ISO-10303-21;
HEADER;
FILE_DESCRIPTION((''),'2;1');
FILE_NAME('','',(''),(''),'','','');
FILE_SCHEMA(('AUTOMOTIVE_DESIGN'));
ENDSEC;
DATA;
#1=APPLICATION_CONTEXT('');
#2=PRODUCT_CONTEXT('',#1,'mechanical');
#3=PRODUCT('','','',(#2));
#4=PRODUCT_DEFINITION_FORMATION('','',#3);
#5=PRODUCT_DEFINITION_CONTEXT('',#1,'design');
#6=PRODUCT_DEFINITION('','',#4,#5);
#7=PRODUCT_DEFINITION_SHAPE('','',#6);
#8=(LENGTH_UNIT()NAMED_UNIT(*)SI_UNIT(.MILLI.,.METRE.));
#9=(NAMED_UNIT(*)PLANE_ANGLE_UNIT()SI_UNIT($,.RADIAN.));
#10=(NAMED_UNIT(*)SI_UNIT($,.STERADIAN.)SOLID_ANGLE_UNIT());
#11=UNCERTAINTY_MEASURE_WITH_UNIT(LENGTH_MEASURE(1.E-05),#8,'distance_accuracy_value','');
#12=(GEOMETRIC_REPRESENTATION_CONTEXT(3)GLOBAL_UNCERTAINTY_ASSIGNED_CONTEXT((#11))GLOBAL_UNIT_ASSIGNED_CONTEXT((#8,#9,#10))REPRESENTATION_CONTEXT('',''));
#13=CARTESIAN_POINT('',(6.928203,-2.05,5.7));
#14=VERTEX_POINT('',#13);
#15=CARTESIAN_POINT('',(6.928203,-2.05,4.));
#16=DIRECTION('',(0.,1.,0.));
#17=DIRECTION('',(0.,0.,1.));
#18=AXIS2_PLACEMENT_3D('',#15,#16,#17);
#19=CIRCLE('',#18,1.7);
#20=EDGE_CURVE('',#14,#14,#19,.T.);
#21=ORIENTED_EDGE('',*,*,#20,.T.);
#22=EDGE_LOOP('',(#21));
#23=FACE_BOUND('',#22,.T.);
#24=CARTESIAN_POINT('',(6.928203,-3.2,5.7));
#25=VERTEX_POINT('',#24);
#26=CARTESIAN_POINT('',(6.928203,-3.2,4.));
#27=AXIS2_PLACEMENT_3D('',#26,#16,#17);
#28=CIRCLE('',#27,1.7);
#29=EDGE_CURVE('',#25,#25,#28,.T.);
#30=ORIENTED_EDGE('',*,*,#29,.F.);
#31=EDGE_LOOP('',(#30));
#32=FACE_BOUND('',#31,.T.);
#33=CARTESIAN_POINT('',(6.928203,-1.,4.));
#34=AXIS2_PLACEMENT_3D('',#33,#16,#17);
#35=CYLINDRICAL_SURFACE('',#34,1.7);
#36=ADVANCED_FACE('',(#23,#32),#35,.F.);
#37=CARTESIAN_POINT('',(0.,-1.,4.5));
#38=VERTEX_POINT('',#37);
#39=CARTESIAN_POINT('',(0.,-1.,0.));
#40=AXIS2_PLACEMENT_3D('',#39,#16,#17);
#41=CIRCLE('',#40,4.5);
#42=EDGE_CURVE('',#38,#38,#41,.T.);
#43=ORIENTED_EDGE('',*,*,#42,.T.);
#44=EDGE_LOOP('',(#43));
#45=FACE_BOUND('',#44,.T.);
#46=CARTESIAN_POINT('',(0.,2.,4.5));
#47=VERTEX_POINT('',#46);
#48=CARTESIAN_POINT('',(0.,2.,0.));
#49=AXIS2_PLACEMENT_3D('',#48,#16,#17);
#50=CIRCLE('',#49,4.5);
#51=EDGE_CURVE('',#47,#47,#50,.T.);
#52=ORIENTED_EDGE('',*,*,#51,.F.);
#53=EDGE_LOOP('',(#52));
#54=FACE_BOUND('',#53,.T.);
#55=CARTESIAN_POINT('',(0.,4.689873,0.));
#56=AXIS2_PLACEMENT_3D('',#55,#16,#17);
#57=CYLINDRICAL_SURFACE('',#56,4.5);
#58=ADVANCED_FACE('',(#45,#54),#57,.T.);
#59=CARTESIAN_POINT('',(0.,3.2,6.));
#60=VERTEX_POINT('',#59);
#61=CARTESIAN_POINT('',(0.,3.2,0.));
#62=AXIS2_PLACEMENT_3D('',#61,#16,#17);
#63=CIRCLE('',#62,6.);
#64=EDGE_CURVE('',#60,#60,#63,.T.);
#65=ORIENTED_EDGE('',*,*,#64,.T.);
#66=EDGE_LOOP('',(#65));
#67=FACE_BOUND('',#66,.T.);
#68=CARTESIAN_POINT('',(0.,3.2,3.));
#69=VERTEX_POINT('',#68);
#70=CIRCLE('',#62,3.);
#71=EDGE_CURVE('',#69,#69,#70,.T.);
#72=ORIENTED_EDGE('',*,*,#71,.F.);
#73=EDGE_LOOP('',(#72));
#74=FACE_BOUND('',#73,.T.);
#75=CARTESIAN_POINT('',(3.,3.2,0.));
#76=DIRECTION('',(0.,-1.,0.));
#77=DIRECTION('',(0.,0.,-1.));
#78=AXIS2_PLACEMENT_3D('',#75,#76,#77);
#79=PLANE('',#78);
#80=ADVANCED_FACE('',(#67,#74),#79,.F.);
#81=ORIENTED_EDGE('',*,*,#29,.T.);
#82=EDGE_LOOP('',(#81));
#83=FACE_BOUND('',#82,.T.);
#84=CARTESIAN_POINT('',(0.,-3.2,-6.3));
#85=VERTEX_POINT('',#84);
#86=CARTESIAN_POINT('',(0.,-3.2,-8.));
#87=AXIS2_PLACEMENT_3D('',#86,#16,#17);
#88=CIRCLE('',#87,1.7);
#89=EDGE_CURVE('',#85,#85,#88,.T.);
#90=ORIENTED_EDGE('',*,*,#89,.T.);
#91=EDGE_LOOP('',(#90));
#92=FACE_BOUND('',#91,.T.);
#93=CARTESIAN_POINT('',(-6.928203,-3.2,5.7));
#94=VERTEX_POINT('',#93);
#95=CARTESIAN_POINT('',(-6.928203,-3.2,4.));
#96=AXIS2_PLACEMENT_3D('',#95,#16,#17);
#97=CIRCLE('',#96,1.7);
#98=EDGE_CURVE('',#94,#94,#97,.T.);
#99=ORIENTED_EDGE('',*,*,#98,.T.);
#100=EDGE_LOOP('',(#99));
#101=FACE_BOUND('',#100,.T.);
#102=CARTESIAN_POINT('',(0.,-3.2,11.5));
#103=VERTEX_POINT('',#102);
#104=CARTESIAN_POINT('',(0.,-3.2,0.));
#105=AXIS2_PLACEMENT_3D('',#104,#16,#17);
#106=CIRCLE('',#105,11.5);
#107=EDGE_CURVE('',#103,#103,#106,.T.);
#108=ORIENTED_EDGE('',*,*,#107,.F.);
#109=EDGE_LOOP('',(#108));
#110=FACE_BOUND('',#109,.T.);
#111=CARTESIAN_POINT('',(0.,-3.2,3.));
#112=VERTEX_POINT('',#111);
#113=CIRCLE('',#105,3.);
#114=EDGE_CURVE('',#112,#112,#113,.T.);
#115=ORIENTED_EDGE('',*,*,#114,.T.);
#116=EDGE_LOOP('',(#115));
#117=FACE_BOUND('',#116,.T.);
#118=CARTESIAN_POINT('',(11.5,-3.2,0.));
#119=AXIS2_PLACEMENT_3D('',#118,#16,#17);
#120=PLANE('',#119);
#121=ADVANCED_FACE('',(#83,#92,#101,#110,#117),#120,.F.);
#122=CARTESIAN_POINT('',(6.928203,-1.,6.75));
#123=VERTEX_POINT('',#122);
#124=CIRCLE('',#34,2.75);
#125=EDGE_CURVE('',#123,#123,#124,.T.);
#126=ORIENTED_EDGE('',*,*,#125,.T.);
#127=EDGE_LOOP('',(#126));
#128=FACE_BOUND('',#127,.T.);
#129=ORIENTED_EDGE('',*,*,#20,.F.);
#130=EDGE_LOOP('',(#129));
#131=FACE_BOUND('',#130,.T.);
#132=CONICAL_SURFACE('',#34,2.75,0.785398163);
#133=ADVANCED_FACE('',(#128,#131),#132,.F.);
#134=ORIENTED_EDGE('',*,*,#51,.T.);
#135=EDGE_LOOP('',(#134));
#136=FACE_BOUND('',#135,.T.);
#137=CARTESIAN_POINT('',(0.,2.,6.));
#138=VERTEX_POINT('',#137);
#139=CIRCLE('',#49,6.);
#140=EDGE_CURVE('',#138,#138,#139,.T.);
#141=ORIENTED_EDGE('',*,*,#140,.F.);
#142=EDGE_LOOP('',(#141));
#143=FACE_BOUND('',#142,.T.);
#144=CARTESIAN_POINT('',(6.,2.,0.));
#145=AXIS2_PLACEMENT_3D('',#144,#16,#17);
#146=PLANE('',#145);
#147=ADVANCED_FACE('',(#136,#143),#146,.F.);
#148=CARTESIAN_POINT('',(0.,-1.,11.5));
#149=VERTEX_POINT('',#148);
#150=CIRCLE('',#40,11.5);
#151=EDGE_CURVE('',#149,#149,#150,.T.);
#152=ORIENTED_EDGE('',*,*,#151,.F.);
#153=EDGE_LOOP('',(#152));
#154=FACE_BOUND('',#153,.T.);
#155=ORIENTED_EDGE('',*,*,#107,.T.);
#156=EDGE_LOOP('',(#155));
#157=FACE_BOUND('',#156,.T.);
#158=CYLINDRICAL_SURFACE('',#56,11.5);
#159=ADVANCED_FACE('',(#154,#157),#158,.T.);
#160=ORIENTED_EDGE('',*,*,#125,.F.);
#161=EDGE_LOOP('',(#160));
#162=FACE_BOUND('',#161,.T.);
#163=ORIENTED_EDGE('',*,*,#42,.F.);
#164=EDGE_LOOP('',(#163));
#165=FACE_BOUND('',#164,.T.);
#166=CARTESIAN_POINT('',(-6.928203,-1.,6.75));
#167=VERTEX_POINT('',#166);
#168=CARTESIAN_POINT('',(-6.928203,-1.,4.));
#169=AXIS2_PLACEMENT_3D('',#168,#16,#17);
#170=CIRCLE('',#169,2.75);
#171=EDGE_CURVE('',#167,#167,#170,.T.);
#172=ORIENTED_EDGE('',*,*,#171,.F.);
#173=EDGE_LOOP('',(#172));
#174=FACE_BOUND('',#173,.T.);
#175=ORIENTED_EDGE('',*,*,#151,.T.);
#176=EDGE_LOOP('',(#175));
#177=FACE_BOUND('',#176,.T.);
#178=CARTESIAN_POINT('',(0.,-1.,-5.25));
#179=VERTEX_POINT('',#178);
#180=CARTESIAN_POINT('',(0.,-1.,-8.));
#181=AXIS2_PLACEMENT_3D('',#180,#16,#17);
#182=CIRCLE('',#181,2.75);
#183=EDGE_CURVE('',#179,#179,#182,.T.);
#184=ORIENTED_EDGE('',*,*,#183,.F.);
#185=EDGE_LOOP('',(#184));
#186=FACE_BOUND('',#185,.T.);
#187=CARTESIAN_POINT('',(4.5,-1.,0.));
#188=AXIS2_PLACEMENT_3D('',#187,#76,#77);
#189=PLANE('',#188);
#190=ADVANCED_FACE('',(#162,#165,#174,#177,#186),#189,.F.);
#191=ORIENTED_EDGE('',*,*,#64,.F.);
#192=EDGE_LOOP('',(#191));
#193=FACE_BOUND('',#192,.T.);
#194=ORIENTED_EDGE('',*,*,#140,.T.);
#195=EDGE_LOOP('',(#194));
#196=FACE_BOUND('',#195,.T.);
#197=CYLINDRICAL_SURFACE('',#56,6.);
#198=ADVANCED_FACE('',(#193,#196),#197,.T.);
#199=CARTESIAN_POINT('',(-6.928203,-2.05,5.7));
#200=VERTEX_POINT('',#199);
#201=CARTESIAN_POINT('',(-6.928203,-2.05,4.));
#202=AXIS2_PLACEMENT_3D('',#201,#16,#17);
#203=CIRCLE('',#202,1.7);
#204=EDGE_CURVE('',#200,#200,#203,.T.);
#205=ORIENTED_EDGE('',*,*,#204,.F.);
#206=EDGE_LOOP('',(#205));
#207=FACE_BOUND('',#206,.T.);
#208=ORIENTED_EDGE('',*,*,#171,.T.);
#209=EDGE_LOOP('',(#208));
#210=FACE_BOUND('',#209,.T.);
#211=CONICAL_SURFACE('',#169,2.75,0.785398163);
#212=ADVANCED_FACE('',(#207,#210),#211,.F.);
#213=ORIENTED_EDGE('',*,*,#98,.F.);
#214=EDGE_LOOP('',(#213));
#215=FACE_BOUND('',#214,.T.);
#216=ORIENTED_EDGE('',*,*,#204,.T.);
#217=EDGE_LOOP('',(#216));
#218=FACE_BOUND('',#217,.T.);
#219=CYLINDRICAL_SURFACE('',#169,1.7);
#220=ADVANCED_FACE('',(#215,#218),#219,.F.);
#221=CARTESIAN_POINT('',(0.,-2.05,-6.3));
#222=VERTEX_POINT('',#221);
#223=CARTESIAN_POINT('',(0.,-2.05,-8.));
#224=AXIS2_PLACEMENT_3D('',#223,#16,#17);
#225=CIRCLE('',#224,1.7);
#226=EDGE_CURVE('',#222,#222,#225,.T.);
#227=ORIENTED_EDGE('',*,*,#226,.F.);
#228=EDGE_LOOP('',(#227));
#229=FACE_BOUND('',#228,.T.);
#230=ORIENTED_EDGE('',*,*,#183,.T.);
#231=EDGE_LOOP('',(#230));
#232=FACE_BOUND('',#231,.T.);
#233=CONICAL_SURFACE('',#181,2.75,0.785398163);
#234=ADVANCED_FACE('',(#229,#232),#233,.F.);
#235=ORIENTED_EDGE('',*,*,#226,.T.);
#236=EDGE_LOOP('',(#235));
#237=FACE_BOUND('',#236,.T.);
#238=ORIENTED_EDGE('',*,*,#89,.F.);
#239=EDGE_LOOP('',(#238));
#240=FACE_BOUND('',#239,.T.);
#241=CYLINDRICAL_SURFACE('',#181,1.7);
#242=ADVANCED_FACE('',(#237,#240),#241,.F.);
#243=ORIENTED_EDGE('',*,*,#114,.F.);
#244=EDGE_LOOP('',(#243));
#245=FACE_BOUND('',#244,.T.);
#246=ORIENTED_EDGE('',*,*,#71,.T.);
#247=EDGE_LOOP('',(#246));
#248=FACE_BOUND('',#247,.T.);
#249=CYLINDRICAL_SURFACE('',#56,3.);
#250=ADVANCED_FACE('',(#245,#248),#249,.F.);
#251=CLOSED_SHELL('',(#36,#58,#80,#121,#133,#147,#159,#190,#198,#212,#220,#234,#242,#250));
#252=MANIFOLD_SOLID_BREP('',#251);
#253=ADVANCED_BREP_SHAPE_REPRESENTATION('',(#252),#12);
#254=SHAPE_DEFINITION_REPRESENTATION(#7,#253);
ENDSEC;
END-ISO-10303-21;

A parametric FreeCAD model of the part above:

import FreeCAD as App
import Part
import Sketcher
from FreeCAD import Vector
Q = App.Units.Quantity

doc = App.newDocument("Part")
body = doc.addObject("PartDesign::Body", "Body")

sketch1 = doc.addObject("Sketcher::SketchObject", "Sketch")
body.addObject(sketch1)
sketch1.AttachmentSupport = (doc.XY_Plane, [""])
sketch1.MapMode = "FlatFace"
sketch1.addGeometry([
    Part.LineSegment(Vector(3, 3.2, 0), Vector(3, -3.2, 0)),
    Part.LineSegment(Vector(3, -3.2, 0), Vector(11.5, -3.2, 0)),
    Part.LineSegment(Vector(11.5, -3.2, 0), Vector(11.5, -1, 0)),
    Part.LineSegment(Vector(11.5, -1, 0), Vector(4.5, -1, 0)),
    Part.LineSegment(Vector(4.5, -1, 0), Vector(4.5, 2, 0)),
    Part.LineSegment(Vector(4.5, 2, 0), Vector(6, 2, 0)),
    Part.LineSegment(Vector(6, 2, 0), Vector(6, 3.2, 0)),
    Part.LineSegment(Vector(6, 3.2, 0), Vector(3, 3.2, 0)),
], False)
sketch1.addConstraint([
    Sketcher.Constraint("Coincident", 0, 2, 1, 1),
    Sketcher.Constraint("Coincident", 1, 2, 2, 1),
    Sketcher.Constraint("Coincident", 2, 2, 3, 1),
    Sketcher.Constraint("Coincident", 3, 2, 4, 1),
    Sketcher.Constraint("Coincident", 4, 2, 5, 1),
    Sketcher.Constraint("Coincident", 5, 2, 6, 1),
    Sketcher.Constraint("Coincident", 6, 2, 7, 1),
    Sketcher.Constraint("Coincident", 7, 2, 0, 1),
    Sketcher.Constraint("Vertical", 0),
    Sketcher.Constraint("Horizontal", 1),
    Sketcher.Constraint("Vertical", 2),
    Sketcher.Constraint("Horizontal", 3),
    Sketcher.Constraint("Vertical", 4),
    Sketcher.Constraint("Horizontal", 5),
    Sketcher.Constraint("Vertical", 6),
    Sketcher.Constraint("Horizontal", 7),
    Sketcher.Constraint("Equal", 7, 4),
    Sketcher.Constraint("DistanceX", 3, 2, 3, 1, Q("7 mm")),
    Sketcher.Constraint("DistanceX", 7, 2, 7, 1, Q("3 mm")),
    Sketcher.Constraint("DistanceX", 1, 1, 1, 2, Q("8.5 mm")),
    Sketcher.Constraint("DistanceY", 0, 2, 0, 1, Q("6.4 mm")),
    Sketcher.Constraint("DistanceY", 2, 1, 2, 2, Q("2.2 mm")),
    Sketcher.Constraint("DistanceX", -1, 1, 0, 2, Q("3 mm")),
    Sketcher.Constraint("DistanceY", 2, 2, -1, 1, Q("1 mm")),
])
revolution = doc.addObject("PartDesign::Revolution", "Revolution")
body.addObject(revolution)
revolution.Profile = sketch1
revolution.ReferenceAxis = (sketch1, ["V_Axis"])
revolution.Angle = 360

sketch2 = doc.addObject("Sketcher::SketchObject", "Sketch001")
body.addObject(sketch2)
sketch2.AttachmentSupport = (doc.YZ_Plane, [""])
sketch2.MapMode = "FlatFace"
sketch2.AttachmentOffset = App.Placement(Vector(0, 0, -6.928203), App.Rotation())
sketch2.addGeometry([
    Part.LineSegment(Vector(-3.2, 4, 0), Vector(-1, 4, 0)),
    Part.LineSegment(Vector(-1, 4, 0), Vector(-1, 6.8, 0)),
    Part.LineSegment(Vector(-1, 6.8, 0), Vector(-2, 5.7, 0)),
    Part.LineSegment(Vector(-2, 5.7, 0), Vector(-3.2, 5.7, 0)),
    Part.LineSegment(Vector(-3.2, 5.7, 0), Vector(-3.2, 4, 0)),
], False)
sketch2.addGeometry(Part.LineSegment(Vector(-1, 4, 0), Vector(-3.2, 4, 0)), True)
sketch2.addConstraint([
    Sketcher.Constraint("Coincident", 0, 2, 1, 1),
    Sketcher.Constraint("Coincident", 1, 2, 2, 1),
    Sketcher.Constraint("Coincident", 2, 2, 3, 1),
    Sketcher.Constraint("Coincident", 3, 2, 4, 1),
    Sketcher.Constraint("Coincident", 4, 2, 0, 1),
    Sketcher.Constraint("Horizontal", 0),
    Sketcher.Constraint("Vertical", 1),
    Sketcher.Constraint("Horizontal", 3),
    Sketcher.Constraint("Vertical", 4),
    Sketcher.Constraint("Horizontal", 5),
    Sketcher.Constraint("Coincident", 5, 1, 0, 2),
    Sketcher.Constraint("Vertical", 3, 2, 5, 2),
    Sketcher.Constraint("Angle", 2, Q("-135 deg")),
    Sketcher.Constraint("DistanceX", 0, 1, 0, 2, Q("2.2 mm")),
    Sketcher.Constraint("DistanceY", 4, 2, 4, 1, Q("1.7 mm")),
    Sketcher.Constraint("DistanceX", 0, 2, -1, 1, Q("1 mm")),
    Sketcher.Constraint("DistanceY", -1, 1, 0, 2, Q("4 mm")),
    Sketcher.Constraint("DistanceX", 3, 2, 3, 1, Q("1.15 mm")),
])
groove = doc.addObject("PartDesign::Groove", "Groove")
body.addObject(groove)
groove.Profile = sketch2
groove.ReferenceAxis = (sketch2, ["Axis0"])
groove.Angle = 360
doc.recompute()

linearpattern = doc.addObject("PartDesign::LinearPattern", "LinearPattern")
body.addObject(linearpattern)
linearpattern.Originals = [groove]
linearpattern.Direction = (doc.X_Axis, [""])
linearpattern.Mode = "offset"
linearpattern.Offset = 13.856406
linearpattern.Occurrences = 2
body.Tip = linearpattern
doc.recompute()

datumline = doc.addObject("PartDesign::Line", "DatumLine")
body.addObject(datumline)
datumline.Placement = App.Placement(Vector(0, 0, 0), App.Rotation(Vector(0, 0, 1), Vector(0.5, 0, -0.866025404)))
linearpattern2 = doc.addObject("PartDesign::LinearPattern", "LinearPattern001")
body.addObject(linearpattern2)
linearpattern2.Originals = [groove]
linearpattern2.Direction = (datumline, [""])
linearpattern2.Mode = "offset"
linearpattern2.Offset = 13.856406
linearpattern2.Occurrences = 2
body.Tip = linearpattern2

doc.recompute()
